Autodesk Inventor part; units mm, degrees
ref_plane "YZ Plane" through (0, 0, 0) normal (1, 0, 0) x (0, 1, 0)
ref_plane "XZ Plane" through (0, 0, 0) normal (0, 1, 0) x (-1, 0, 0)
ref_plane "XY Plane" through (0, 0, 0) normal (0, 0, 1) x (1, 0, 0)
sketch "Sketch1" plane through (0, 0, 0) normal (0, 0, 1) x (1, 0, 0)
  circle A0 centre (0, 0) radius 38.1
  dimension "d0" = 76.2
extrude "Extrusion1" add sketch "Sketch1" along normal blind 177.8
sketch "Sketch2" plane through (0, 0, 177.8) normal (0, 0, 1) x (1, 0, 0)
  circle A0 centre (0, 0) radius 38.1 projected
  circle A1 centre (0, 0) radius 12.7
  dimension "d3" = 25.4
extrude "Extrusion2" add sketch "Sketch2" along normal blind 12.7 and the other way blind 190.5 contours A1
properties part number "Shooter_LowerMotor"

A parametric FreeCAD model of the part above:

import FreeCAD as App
import Part
import Sketcher

V = App.Vector
Q = App.Units.Quantity

doc = App.newDocument("Part")
body = doc.addObject("PartDesign::Body", "Body")

# Sketch on XY plane
sketch1 = body.newObject("Sketcher::SketchObject", "Sketch")
sketch1.AttachmentSupport = (doc.getObject("XY_Plane"), [""])
sketch1.MapMode = "FlatFace"
sketch1.addGeometry(Part.Circle(V(0, 0, 0), V(0, 0, 1), 38), False)
sketch1.addConstraint([
    Sketcher.Constraint("Coincident", 0, 3, -1, 1),
    Sketcher.Constraint("Diameter", 0, Q("3 in")),
])
pad1 = body.newObject("PartDesign::Pad", "Pad")
pad1.Profile = sketch1
pad1.Length = Q("7 in")

# Sketch on XY plane
sketch2 = body.newObject("Sketcher::SketchObject", "Sketch001")
sketch2.AttachmentSupport = (doc.getObject("XY_Plane"), [""])
sketch2.MapMode = "FlatFace"
sketch2.AttachmentOffset = App.Placement(V(0, 0, 7 * 25.4), App.Rotation())
sketch2.addGeometry(Part.Circle(V(0, 0, 0), V(0, 0, 1), 13), False)
sketch2.addConstraint([
    Sketcher.Constraint("Coincident", 0, 3, -1, 1),
    Sketcher.Constraint("Diameter", 0, Q("1 in")),
])
pad2 = body.newObject("PartDesign::Pad", "Pad001")
pad2.Profile = sketch2
pad2.Type = "TwoLengths"
pad2.Length = Q("0.5 in")
pad2.Length2 = Q("7.5 in")

doc.recompute()
